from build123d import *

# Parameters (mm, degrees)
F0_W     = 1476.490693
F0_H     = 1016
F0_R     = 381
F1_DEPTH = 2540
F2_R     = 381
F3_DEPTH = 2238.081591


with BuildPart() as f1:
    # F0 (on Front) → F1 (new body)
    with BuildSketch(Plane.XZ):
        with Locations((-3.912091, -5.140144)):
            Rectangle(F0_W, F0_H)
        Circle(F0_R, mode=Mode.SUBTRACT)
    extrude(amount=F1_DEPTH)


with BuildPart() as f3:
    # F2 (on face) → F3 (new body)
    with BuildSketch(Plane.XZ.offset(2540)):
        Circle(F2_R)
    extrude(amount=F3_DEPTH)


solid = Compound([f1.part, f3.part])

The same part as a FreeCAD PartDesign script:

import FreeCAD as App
import Part
import Sketcher

V = App.Vector
Q = App.Units.Quantity


def add_polygon(sketch, points):
    """Adds a closed chain of lines whose ends are joined by coincident constraints."""
    first, n = sketch.GeometryCount, len(points)
    for a, b in zip(points, points[1:] + points[:1]):
        sketch.addGeometry(Part.LineSegment(App.Vector(*a, 0), App.Vector(*b, 0)), False)
    for i in range(n):
        sketch.addConstraint(Sketcher.Constraint("Coincident", first + i, 2, first + (i + 1) % n, 1))

doc = App.newDocument("Part")
body = doc.addObject("PartDesign::Body", "Body")

# Sketch on XZ plane
sketch1 = body.newObject("Sketcher::SketchObject", "Sketch")
sketch1.AttachmentSupport = (doc.getObject("XZ_Plane"), [""])
sketch1.MapMode = "FlatFace"
add_polygon(sketch1, [(-742, 503), (-742, -513), (734, -513), (734, 503)])  # lines 0-3
sketch1.addGeometry(Part.Circle(V(0, 0, 0), V(0, 0, 1), 381), False)  # 4
sketch1.addConstraint(Sketcher.Constraint("Vertical", 0))
sketch1.addConstraint(Sketcher.Constraint("Horizontal", 1))
sketch1.addConstraint(Sketcher.Constraint("Vertical", 2))
sketch1.addConstraint(Sketcher.Constraint("Horizontal", 3))
sketch1.addConstraint(Sketcher.Constraint("Coincident", 4, 3, -1, 1))
sketch1.addConstraint(Sketcher.Constraint("Diameter", 4, Q("30 in")))
sketch1.addConstraint(Sketcher.Constraint("DistanceY", 0, 2, 0, 1, Q("40 in")))
sketch1.addConstraint(Sketcher.Constraint("DistanceX", 1, 1, 1, 2, 1476.490693))
sketch1.addConstraint(Sketcher.Constraint("DistanceX", 0, 2, -1, 1, 742.157438))
sketch1.addConstraint(Sketcher.Constraint("DistanceY", 0, 2, -1, 1, 513.140144))
pad1 = body.newObject("PartDesign::Pad", "Pad")
pad1.Profile = sketch1
pad1.Length = Q("100 in")
body2 = doc.addObject("PartDesign::Body", "Body001")

# Sketch on XZ plane
sketch2 = body2.newObject("Sketcher::SketchObject", "Sketch001")
sketch2.AttachmentSupport = (doc.getObject("XZ_Plane001"), [""])
sketch2.MapMode = "FlatFace"
sketch2.AttachmentOffset = App.Placement(V(0, 0, 100 * 25.4), App.Rotation())
sketch2.addGeometry(Part.Circle(V(0, 0, 0), V(0, 0, 1), 381), False)
sketch2.addConstraint(Sketcher.Constraint("Coincident", 0, 3, -1, 1))
sketch2.addConstraint(Sketcher.Constraint("Diameter", 0, Q("30 in")))
pad2 = body2.newObject("PartDesign::Pad", "Pad001")
pad2.Profile = sketch2
pad2.Length = 2238.081591

doc.recompute()
